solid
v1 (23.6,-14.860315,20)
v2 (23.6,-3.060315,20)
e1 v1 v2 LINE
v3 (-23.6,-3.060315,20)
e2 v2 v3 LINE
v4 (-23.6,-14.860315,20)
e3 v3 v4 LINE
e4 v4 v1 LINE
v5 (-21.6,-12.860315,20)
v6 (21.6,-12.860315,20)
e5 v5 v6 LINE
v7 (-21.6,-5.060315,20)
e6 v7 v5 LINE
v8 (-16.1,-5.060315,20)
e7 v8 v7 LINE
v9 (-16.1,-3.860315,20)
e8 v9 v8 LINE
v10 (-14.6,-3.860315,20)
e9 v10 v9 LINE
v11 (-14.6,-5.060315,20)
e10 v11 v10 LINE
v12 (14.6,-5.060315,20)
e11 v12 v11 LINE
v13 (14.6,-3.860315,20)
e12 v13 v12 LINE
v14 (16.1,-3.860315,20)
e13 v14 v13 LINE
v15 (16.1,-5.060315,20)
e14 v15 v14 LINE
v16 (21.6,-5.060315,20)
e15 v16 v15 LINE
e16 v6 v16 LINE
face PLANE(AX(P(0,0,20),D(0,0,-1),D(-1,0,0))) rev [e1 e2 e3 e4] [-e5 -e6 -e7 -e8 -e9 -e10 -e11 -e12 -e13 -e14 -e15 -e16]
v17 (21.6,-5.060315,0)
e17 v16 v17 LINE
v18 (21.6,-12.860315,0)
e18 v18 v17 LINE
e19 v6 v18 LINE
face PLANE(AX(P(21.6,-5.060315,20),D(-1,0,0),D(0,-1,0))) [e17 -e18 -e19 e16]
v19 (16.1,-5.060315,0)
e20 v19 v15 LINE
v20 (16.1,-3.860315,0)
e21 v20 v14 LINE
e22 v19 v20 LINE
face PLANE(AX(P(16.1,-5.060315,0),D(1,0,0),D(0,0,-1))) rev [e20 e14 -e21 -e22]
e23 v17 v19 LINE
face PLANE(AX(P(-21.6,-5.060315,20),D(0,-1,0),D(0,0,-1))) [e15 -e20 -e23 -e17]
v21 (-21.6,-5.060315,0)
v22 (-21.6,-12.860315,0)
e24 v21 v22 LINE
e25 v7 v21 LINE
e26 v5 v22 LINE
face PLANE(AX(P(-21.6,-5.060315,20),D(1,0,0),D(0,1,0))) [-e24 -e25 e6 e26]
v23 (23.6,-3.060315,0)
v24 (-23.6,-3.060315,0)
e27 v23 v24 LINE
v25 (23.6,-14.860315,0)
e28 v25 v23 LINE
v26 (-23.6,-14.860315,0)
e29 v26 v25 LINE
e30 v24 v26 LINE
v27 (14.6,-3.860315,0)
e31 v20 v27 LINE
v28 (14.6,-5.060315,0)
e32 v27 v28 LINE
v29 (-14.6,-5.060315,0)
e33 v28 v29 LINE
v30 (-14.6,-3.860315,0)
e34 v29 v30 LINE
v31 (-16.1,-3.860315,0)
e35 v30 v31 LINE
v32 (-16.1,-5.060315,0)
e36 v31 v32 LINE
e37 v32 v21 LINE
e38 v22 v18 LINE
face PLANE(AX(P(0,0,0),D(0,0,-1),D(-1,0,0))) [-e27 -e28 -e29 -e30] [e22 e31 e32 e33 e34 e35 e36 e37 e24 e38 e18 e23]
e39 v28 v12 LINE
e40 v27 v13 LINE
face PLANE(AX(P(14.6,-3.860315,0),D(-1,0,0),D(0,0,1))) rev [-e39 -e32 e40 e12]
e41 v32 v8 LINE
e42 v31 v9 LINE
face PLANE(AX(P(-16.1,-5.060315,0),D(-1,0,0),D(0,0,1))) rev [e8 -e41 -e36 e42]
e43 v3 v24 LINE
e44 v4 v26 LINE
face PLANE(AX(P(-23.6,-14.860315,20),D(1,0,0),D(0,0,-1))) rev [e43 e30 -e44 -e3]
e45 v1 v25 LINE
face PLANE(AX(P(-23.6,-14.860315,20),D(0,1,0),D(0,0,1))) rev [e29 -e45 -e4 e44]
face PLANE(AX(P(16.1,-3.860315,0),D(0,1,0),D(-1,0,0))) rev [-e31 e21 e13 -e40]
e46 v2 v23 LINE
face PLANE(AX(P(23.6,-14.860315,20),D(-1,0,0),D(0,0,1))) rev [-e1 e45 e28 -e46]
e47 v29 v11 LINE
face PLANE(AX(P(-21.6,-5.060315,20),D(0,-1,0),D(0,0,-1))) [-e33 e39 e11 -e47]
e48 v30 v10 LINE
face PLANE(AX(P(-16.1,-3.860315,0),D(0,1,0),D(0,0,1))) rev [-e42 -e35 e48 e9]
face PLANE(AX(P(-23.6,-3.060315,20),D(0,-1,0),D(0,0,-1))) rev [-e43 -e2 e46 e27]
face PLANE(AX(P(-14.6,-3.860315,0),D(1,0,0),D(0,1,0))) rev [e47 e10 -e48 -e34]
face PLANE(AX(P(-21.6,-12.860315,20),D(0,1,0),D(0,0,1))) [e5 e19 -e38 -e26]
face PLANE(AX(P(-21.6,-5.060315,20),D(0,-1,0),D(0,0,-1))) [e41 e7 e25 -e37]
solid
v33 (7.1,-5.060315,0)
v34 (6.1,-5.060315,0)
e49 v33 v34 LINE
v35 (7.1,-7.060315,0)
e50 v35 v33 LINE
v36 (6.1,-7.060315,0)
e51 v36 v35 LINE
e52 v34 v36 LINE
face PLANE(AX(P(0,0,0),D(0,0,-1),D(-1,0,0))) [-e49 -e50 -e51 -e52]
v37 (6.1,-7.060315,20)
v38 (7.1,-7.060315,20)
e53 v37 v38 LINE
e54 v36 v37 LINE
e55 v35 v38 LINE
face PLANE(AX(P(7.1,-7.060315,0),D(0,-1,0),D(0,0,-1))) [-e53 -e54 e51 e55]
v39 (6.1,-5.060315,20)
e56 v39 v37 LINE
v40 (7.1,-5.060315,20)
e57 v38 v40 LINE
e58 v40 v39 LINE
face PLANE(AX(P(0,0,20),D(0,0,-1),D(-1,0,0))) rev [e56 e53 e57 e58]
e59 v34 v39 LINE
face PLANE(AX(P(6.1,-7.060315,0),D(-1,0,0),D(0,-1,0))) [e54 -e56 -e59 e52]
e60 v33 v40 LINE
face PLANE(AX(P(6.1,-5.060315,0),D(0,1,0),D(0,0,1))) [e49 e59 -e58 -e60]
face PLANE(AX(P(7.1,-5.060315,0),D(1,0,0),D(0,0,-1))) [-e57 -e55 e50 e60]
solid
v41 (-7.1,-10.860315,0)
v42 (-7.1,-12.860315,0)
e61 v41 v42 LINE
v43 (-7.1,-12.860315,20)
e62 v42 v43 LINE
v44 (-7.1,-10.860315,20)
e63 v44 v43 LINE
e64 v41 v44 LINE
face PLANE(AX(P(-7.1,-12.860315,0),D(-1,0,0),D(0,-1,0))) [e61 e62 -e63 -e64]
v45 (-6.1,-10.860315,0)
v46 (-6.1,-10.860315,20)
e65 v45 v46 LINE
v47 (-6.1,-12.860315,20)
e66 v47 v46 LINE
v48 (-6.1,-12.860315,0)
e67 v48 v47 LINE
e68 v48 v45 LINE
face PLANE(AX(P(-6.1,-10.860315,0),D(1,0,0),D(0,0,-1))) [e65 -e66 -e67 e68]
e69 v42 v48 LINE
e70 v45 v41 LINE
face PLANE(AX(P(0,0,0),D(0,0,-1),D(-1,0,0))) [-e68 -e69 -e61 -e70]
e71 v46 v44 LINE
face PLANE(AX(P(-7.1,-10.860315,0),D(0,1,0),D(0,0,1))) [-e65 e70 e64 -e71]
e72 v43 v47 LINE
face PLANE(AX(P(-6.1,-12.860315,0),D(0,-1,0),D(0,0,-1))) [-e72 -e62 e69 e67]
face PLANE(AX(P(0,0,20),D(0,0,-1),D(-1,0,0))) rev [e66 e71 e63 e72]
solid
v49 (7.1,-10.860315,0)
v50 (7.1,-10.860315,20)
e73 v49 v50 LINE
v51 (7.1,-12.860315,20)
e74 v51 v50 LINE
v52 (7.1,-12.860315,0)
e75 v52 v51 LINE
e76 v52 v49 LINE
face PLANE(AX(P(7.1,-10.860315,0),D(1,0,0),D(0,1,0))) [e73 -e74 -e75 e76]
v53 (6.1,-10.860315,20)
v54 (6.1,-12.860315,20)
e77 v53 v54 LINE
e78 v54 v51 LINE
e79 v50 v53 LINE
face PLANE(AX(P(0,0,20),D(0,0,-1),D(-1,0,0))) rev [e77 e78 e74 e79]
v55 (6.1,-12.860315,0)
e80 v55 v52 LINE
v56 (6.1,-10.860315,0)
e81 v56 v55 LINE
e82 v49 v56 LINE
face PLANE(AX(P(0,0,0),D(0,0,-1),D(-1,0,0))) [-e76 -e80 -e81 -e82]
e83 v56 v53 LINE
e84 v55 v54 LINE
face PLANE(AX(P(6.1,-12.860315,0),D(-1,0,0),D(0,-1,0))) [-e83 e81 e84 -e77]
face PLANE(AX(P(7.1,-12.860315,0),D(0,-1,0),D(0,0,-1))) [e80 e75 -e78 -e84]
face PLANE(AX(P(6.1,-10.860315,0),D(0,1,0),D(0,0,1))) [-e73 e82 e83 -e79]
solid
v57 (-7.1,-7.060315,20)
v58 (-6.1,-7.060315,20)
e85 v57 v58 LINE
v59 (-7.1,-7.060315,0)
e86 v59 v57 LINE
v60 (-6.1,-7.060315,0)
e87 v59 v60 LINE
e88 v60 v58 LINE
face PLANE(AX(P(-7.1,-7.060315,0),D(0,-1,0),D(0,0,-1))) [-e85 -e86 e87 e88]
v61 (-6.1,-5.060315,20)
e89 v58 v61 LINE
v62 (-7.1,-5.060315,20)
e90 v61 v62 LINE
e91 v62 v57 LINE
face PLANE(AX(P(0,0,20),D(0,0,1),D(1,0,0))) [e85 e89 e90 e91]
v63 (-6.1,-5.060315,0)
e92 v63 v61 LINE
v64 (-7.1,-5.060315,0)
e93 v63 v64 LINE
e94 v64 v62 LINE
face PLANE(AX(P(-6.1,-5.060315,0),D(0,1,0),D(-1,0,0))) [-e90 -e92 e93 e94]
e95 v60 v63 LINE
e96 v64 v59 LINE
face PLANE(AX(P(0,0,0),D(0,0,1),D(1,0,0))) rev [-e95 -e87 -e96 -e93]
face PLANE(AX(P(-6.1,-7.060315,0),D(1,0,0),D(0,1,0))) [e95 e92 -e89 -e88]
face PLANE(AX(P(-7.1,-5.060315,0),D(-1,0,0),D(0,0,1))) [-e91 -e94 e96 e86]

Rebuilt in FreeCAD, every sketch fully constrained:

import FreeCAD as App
import Part
import Sketcher

V = App.Vector


def add_polygon(sketch, points):
    """Adds a closed chain of lines whose ends are joined by coincident constraints."""
    first, n = sketch.GeometryCount, len(points)
    for a, b in zip(points, points[1:] + points[:1]):
        sketch.addGeometry(Part.LineSegment(App.Vector(*a, 0), App.Vector(*b, 0)), False)
    for i in range(n):
        sketch.addConstraint(Sketcher.Constraint("Coincident", first + i, 2, first + (i + 1) % n, 1))

doc = App.newDocument("Part")
body = doc.addObject("PartDesign::Body", "Body")

# Sketch on XY plane
sketch1 = body.newObject("Sketcher::SketchObject", "Sketch")
sketch1.AttachmentSupport = (doc.getObject("XY_Plane"), [""])
sketch1.MapMode = "FlatFace"
add_polygon(sketch1, [(-23.6, -3.060315), (-23.6, -14.860315), (23.6, -14.860315), (23.6, -3.060315)])  # lines 0-3
add_polygon(sketch1, [(21.6, -12.860315), (-21.6, -12.860315), (-21.6, -5.060315), (21.6, -5.060315)])  # lines 4-7
sketch1.addConstraint(Sketcher.Constraint("Vertical", 0))
sketch1.addConstraint(Sketcher.Constraint("Horizontal", 1))
sketch1.addConstraint(Sketcher.Constraint("Vertical", 2))
sketch1.addConstraint(Sketcher.Constraint("Horizontal", 3))
sketch1.addConstraint(Sketcher.Constraint("Horizontal", 4))
sketch1.addConstraint(Sketcher.Constraint("Vertical", 5))
sketch1.addConstraint(Sketcher.Constraint("Horizontal", 6))
sketch1.addConstraint(Sketcher.Constraint("Vertical", 7))
sketch1.addConstraint(Sketcher.Constraint("DistanceX", 1, 1, 1, 2, 47.2))
sketch1.addConstraint(Sketcher.Constraint("DistanceX", 4, 2, 4, 1, 43.2))
sketch1.addConstraint(Sketcher.Constraint("DistanceY", 0, 2, 0, 1, 11.8))
sketch1.addConstraint(Sketcher.Constraint("DistanceY", 5, 1, 5, 2, 7.8))
sketch1.addConstraint(Sketcher.Constraint("DistanceX", 0, 2, 4, 2, 2.0))
sketch1.addConstraint(Sketcher.Constraint("DistanceY", 0, 2, 4, 2, 2.0))
sketch1.addConstraint(Sketcher.Constraint("DistanceX", 0, 2, -1, 1, 23.6))
sketch1.addConstraint(Sketcher.Constraint("DistanceY", 0, 2, -1, 1, 14.860315))
pad1 = body.newObject("PartDesign::Pad", "Pad")
pad1.Profile = sketch1
pad1.Length = 20

# Sketch on XY plane
sketch2 = body.newObject("Sketcher::SketchObject", "Sketch001")
sketch2.AttachmentSupport = (doc.getObject("XY_Plane"), [""])
sketch2.MapMode = "FlatFace"
sketch2.AttachmentOffset = App.Placement(V(0, 0, 20), App.Rotation())
add_polygon(sketch2, [(-16.1, -3.860315), (-16.1, -5.060315), (-14.6, -5.060315), (-14.6, -3.860315)])  # lines 0-3
add_polygon(sketch2, [(14.6, -3.860315), (14.6, -5.060315), (16.1, -5.060315), (16.1, -3.860315)])  # lines 4-7
sketch2.addConstraint(Sketcher.Constraint("Vertical", 0))
sketch2.addConstraint(Sketcher.Constraint("Horizontal", 1))
sketch2.addConstraint(Sketcher.Constraint("Vertical", 2))
sketch2.addConstraint(Sketcher.Constraint("Horizontal", 3))
sketch2.addConstraint(Sketcher.Constraint("Vertical", 4))
sketch2.addConstraint(Sketcher.Constraint("Horizontal", 5))
sketch2.addConstraint(Sketcher.Constraint("Vertical", 6))
sketch2.addConstraint(Sketcher.Constraint("Horizontal", 7))
sketch2.addConstraint(Sketcher.Constraint("Symmetric", 1, 2, 4, 2, -2))
sketch2.addConstraint(Sketcher.Constraint("Symmetric", 3, 2, 6, 2, -2))
sketch2.addConstraint(Sketcher.Constraint("DistanceX", 1, 1, 1, 2, 1.5))
sketch2.addConstraint(Sketcher.Constraint("DistanceY", 0, 2, 0, 1, 1.2))
sketch2.addConstraint(Sketcher.Constraint("DistanceX", 0, 2, -1, 1, 16.1))
sketch2.addConstraint(Sketcher.Constraint("DistanceY", 0, 2, -1, 1, 5.060315))
pocket1 = body.newObject("PartDesign::Pocket", "Pocket")
pocket1.Profile = sketch2
pocket1.Length = 20
body2 = doc.addObject("PartDesign::Body", "Body001")

# Sketch on XY plane
sketch3 = body2.newObject("Sketcher::SketchObject", "Sketch002")
sketch3.AttachmentSupport = (doc.getObject("XY_Plane001"), [""])
sketch3.MapMode = "FlatFace"
sketch3.AttachmentOffset = App.Placement(V(0, 0, 20), App.Rotation())
add_polygon(sketch3, [(-7.1, -5.060315), (-7.1, -7.060315), (-6.1, -7.060315), (-6.1, -5.060315)])  # lines 0-3
sketch3.addConstraint(Sketcher.Constraint("Vertical", 0))
sketch3.addConstraint(Sketcher.Constraint("Horizontal", 1))
sketch3.addConstraint(Sketcher.Constraint("Vertical", 2))
sketch3.addConstraint(Sketcher.Constraint("Horizontal", 3))
sketch3.addConstraint(Sketcher.Constraint("DistanceX", 1, 1, 1, 2, 1.0))
sketch3.addConstraint(Sketcher.Constraint("DistanceY", 0, 2, 0, 1, 2.0))
sketch3.addConstraint(Sketcher.Constraint("DistanceX", 0, 2, -1, 1, 7.1))
sketch3.addConstraint(Sketcher.Constraint("DistanceY", 0, 2, -1, 1, 7.060315))
pad2 = body2.newObject("PartDesign::Pad", "Pad001")
pad2.Profile = sketch3
pad2.Length = 20
pad2.Reversed = True
body3 = doc.addObject("PartDesign::Body", "Body002")

# Sketch on XY plane
sketch4 = body3.newObject("Sketcher::SketchObject", "Sketch003")
sketch4.AttachmentSupport = (doc.getObject("XY_Plane002"), [""])
sketch4.MapMode = "FlatFace"
sketch4.AttachmentOffset = App.Placement(V(0, 0, 20), App.Rotation())
add_polygon(sketch4, [(6.1, -5.060315), (6.1, -7.060315), (7.1, -7.060315), (7.1, -5.060315)])  # lines 0-3
sketch4.addConstraint(Sketcher.Constraint("Vertical", 0))
sketch4.addConstraint(Sketcher.Constraint("Horizontal", 1))
sketch4.addConstraint(Sketcher.Constraint("Vertical", 2))
sketch4.addConstraint(Sketcher.Constraint("Horizontal", 3))
sketch4.addConstraint(Sketcher.Constraint("DistanceX", 1, 1, 1, 2, 1.0))
sketch4.addConstraint(Sketcher.Constraint("DistanceY", 0, 2, 0, 1, 2.0))
sketch4.addConstraint(Sketcher.Constraint("DistanceX", -1, 1, 0, 2, 6.1))
sketch4.addConstraint(Sketcher.Constraint("DistanceY", 0, 2, -1, 1, 7.060315))
pad3 = body3.newObject("PartDesign::Pad", "Pad002")
pad3.Profile = sketch4
pad3.Length = 20
pad3.Reversed = True
body4 = doc.addObject("PartDesign::Body", "Body003")

# Sketch on XY plane
sketch5 = body4.newObject("Sketcher::SketchObject", "Sketch004")
sketch5.AttachmentSupport = (doc.getObject("XY_Plane003"), [""])
sketch5.MapMode = "FlatFace"
sketch5.AttachmentOffset = App.Placement(V(0, 0, 20), App.Rotation())
add_polygon(sketch5, [(-7.1, -10.860315), (-7.1, -12.860315), (-6.1, -12.860315), (-6.1, -10.860315)])  # lines 0-3
sketch5.addConstraint(Sketcher.Constraint("Vertical", 0))
sketch5.addConstraint(Sketcher.Constraint("Horizontal", 1))
sketch5.addConstraint(Sketcher.Constraint("Vertical", 2))
sketch5.addConstraint(Sketcher.Constraint("Horizontal", 3))
sketch5.addConstraint(Sketcher.Constraint("DistanceX", 1, 1, 1, 2, 1.0))
sketch5.addConstraint(Sketcher.Constraint("DistanceY", 0, 2, 0, 1, 2.0))
sketch5.addConstraint(Sketcher.Constraint("DistanceX", 0, 2, -1, 1, 7.1))
sketch5.addConstraint(Sketcher.Constraint("DistanceY", 0, 2, -1, 1, 12.860315))
pad4 = body4.newObject("PartDesign::Pad", "Pad003")
pad4.Profile = sketch5
pad4.Length = 20
pad4.Reversed = True
body5 = doc.addObject("PartDesign::Body", "Body004")

# Sketch on XY plane
sketch6 = body5.newObject("Sketcher::SketchObject", "Sketch005")
sketch6.AttachmentSupport = (doc.getObject("XY_Plane004"), [""])
sketch6.MapMode = "FlatFace"
sketch6.AttachmentOffset = App.Placement(V(0, 0, 20), App.Rotation())
add_polygon(sketch6, [(6.1, -10.860315), (6.1, -12.860315), (7.1, -12.860315), (7.1, -10.860315)])  # lines 0-3
sketch6.addConstraint(Sketcher.Constraint("Vertical", 0))
sketch6.addConstraint(Sketcher.Constraint("Horizontal", 1))
sketch6.addConstraint(Sketcher.Constraint("Vertical", 2))
sketch6.addConstraint(Sketcher.Constraint("Horizontal", 3))
sketch6.addConstraint(Sketcher.Constraint("DistanceX", 1, 1, 1, 2, 1.0))
sketch6.addConstraint(Sketcher.Constraint("DistanceY", 0, 2, 0, 1, 2.0))
sketch6.addConstraint(Sketcher.Constraint("DistanceX", -1, 1, 0, 2, 6.1))
sketch6.addConstraint(Sketcher.Constraint("DistanceY", 0, 2, -1, 1, 12.860315))
pad5 = body5.newObject("PartDesign::Pad", "Pad004")
pad5.Profile = sketch6
pad5.Length = 20
pad5.Reversed = True

doc.recompute()
